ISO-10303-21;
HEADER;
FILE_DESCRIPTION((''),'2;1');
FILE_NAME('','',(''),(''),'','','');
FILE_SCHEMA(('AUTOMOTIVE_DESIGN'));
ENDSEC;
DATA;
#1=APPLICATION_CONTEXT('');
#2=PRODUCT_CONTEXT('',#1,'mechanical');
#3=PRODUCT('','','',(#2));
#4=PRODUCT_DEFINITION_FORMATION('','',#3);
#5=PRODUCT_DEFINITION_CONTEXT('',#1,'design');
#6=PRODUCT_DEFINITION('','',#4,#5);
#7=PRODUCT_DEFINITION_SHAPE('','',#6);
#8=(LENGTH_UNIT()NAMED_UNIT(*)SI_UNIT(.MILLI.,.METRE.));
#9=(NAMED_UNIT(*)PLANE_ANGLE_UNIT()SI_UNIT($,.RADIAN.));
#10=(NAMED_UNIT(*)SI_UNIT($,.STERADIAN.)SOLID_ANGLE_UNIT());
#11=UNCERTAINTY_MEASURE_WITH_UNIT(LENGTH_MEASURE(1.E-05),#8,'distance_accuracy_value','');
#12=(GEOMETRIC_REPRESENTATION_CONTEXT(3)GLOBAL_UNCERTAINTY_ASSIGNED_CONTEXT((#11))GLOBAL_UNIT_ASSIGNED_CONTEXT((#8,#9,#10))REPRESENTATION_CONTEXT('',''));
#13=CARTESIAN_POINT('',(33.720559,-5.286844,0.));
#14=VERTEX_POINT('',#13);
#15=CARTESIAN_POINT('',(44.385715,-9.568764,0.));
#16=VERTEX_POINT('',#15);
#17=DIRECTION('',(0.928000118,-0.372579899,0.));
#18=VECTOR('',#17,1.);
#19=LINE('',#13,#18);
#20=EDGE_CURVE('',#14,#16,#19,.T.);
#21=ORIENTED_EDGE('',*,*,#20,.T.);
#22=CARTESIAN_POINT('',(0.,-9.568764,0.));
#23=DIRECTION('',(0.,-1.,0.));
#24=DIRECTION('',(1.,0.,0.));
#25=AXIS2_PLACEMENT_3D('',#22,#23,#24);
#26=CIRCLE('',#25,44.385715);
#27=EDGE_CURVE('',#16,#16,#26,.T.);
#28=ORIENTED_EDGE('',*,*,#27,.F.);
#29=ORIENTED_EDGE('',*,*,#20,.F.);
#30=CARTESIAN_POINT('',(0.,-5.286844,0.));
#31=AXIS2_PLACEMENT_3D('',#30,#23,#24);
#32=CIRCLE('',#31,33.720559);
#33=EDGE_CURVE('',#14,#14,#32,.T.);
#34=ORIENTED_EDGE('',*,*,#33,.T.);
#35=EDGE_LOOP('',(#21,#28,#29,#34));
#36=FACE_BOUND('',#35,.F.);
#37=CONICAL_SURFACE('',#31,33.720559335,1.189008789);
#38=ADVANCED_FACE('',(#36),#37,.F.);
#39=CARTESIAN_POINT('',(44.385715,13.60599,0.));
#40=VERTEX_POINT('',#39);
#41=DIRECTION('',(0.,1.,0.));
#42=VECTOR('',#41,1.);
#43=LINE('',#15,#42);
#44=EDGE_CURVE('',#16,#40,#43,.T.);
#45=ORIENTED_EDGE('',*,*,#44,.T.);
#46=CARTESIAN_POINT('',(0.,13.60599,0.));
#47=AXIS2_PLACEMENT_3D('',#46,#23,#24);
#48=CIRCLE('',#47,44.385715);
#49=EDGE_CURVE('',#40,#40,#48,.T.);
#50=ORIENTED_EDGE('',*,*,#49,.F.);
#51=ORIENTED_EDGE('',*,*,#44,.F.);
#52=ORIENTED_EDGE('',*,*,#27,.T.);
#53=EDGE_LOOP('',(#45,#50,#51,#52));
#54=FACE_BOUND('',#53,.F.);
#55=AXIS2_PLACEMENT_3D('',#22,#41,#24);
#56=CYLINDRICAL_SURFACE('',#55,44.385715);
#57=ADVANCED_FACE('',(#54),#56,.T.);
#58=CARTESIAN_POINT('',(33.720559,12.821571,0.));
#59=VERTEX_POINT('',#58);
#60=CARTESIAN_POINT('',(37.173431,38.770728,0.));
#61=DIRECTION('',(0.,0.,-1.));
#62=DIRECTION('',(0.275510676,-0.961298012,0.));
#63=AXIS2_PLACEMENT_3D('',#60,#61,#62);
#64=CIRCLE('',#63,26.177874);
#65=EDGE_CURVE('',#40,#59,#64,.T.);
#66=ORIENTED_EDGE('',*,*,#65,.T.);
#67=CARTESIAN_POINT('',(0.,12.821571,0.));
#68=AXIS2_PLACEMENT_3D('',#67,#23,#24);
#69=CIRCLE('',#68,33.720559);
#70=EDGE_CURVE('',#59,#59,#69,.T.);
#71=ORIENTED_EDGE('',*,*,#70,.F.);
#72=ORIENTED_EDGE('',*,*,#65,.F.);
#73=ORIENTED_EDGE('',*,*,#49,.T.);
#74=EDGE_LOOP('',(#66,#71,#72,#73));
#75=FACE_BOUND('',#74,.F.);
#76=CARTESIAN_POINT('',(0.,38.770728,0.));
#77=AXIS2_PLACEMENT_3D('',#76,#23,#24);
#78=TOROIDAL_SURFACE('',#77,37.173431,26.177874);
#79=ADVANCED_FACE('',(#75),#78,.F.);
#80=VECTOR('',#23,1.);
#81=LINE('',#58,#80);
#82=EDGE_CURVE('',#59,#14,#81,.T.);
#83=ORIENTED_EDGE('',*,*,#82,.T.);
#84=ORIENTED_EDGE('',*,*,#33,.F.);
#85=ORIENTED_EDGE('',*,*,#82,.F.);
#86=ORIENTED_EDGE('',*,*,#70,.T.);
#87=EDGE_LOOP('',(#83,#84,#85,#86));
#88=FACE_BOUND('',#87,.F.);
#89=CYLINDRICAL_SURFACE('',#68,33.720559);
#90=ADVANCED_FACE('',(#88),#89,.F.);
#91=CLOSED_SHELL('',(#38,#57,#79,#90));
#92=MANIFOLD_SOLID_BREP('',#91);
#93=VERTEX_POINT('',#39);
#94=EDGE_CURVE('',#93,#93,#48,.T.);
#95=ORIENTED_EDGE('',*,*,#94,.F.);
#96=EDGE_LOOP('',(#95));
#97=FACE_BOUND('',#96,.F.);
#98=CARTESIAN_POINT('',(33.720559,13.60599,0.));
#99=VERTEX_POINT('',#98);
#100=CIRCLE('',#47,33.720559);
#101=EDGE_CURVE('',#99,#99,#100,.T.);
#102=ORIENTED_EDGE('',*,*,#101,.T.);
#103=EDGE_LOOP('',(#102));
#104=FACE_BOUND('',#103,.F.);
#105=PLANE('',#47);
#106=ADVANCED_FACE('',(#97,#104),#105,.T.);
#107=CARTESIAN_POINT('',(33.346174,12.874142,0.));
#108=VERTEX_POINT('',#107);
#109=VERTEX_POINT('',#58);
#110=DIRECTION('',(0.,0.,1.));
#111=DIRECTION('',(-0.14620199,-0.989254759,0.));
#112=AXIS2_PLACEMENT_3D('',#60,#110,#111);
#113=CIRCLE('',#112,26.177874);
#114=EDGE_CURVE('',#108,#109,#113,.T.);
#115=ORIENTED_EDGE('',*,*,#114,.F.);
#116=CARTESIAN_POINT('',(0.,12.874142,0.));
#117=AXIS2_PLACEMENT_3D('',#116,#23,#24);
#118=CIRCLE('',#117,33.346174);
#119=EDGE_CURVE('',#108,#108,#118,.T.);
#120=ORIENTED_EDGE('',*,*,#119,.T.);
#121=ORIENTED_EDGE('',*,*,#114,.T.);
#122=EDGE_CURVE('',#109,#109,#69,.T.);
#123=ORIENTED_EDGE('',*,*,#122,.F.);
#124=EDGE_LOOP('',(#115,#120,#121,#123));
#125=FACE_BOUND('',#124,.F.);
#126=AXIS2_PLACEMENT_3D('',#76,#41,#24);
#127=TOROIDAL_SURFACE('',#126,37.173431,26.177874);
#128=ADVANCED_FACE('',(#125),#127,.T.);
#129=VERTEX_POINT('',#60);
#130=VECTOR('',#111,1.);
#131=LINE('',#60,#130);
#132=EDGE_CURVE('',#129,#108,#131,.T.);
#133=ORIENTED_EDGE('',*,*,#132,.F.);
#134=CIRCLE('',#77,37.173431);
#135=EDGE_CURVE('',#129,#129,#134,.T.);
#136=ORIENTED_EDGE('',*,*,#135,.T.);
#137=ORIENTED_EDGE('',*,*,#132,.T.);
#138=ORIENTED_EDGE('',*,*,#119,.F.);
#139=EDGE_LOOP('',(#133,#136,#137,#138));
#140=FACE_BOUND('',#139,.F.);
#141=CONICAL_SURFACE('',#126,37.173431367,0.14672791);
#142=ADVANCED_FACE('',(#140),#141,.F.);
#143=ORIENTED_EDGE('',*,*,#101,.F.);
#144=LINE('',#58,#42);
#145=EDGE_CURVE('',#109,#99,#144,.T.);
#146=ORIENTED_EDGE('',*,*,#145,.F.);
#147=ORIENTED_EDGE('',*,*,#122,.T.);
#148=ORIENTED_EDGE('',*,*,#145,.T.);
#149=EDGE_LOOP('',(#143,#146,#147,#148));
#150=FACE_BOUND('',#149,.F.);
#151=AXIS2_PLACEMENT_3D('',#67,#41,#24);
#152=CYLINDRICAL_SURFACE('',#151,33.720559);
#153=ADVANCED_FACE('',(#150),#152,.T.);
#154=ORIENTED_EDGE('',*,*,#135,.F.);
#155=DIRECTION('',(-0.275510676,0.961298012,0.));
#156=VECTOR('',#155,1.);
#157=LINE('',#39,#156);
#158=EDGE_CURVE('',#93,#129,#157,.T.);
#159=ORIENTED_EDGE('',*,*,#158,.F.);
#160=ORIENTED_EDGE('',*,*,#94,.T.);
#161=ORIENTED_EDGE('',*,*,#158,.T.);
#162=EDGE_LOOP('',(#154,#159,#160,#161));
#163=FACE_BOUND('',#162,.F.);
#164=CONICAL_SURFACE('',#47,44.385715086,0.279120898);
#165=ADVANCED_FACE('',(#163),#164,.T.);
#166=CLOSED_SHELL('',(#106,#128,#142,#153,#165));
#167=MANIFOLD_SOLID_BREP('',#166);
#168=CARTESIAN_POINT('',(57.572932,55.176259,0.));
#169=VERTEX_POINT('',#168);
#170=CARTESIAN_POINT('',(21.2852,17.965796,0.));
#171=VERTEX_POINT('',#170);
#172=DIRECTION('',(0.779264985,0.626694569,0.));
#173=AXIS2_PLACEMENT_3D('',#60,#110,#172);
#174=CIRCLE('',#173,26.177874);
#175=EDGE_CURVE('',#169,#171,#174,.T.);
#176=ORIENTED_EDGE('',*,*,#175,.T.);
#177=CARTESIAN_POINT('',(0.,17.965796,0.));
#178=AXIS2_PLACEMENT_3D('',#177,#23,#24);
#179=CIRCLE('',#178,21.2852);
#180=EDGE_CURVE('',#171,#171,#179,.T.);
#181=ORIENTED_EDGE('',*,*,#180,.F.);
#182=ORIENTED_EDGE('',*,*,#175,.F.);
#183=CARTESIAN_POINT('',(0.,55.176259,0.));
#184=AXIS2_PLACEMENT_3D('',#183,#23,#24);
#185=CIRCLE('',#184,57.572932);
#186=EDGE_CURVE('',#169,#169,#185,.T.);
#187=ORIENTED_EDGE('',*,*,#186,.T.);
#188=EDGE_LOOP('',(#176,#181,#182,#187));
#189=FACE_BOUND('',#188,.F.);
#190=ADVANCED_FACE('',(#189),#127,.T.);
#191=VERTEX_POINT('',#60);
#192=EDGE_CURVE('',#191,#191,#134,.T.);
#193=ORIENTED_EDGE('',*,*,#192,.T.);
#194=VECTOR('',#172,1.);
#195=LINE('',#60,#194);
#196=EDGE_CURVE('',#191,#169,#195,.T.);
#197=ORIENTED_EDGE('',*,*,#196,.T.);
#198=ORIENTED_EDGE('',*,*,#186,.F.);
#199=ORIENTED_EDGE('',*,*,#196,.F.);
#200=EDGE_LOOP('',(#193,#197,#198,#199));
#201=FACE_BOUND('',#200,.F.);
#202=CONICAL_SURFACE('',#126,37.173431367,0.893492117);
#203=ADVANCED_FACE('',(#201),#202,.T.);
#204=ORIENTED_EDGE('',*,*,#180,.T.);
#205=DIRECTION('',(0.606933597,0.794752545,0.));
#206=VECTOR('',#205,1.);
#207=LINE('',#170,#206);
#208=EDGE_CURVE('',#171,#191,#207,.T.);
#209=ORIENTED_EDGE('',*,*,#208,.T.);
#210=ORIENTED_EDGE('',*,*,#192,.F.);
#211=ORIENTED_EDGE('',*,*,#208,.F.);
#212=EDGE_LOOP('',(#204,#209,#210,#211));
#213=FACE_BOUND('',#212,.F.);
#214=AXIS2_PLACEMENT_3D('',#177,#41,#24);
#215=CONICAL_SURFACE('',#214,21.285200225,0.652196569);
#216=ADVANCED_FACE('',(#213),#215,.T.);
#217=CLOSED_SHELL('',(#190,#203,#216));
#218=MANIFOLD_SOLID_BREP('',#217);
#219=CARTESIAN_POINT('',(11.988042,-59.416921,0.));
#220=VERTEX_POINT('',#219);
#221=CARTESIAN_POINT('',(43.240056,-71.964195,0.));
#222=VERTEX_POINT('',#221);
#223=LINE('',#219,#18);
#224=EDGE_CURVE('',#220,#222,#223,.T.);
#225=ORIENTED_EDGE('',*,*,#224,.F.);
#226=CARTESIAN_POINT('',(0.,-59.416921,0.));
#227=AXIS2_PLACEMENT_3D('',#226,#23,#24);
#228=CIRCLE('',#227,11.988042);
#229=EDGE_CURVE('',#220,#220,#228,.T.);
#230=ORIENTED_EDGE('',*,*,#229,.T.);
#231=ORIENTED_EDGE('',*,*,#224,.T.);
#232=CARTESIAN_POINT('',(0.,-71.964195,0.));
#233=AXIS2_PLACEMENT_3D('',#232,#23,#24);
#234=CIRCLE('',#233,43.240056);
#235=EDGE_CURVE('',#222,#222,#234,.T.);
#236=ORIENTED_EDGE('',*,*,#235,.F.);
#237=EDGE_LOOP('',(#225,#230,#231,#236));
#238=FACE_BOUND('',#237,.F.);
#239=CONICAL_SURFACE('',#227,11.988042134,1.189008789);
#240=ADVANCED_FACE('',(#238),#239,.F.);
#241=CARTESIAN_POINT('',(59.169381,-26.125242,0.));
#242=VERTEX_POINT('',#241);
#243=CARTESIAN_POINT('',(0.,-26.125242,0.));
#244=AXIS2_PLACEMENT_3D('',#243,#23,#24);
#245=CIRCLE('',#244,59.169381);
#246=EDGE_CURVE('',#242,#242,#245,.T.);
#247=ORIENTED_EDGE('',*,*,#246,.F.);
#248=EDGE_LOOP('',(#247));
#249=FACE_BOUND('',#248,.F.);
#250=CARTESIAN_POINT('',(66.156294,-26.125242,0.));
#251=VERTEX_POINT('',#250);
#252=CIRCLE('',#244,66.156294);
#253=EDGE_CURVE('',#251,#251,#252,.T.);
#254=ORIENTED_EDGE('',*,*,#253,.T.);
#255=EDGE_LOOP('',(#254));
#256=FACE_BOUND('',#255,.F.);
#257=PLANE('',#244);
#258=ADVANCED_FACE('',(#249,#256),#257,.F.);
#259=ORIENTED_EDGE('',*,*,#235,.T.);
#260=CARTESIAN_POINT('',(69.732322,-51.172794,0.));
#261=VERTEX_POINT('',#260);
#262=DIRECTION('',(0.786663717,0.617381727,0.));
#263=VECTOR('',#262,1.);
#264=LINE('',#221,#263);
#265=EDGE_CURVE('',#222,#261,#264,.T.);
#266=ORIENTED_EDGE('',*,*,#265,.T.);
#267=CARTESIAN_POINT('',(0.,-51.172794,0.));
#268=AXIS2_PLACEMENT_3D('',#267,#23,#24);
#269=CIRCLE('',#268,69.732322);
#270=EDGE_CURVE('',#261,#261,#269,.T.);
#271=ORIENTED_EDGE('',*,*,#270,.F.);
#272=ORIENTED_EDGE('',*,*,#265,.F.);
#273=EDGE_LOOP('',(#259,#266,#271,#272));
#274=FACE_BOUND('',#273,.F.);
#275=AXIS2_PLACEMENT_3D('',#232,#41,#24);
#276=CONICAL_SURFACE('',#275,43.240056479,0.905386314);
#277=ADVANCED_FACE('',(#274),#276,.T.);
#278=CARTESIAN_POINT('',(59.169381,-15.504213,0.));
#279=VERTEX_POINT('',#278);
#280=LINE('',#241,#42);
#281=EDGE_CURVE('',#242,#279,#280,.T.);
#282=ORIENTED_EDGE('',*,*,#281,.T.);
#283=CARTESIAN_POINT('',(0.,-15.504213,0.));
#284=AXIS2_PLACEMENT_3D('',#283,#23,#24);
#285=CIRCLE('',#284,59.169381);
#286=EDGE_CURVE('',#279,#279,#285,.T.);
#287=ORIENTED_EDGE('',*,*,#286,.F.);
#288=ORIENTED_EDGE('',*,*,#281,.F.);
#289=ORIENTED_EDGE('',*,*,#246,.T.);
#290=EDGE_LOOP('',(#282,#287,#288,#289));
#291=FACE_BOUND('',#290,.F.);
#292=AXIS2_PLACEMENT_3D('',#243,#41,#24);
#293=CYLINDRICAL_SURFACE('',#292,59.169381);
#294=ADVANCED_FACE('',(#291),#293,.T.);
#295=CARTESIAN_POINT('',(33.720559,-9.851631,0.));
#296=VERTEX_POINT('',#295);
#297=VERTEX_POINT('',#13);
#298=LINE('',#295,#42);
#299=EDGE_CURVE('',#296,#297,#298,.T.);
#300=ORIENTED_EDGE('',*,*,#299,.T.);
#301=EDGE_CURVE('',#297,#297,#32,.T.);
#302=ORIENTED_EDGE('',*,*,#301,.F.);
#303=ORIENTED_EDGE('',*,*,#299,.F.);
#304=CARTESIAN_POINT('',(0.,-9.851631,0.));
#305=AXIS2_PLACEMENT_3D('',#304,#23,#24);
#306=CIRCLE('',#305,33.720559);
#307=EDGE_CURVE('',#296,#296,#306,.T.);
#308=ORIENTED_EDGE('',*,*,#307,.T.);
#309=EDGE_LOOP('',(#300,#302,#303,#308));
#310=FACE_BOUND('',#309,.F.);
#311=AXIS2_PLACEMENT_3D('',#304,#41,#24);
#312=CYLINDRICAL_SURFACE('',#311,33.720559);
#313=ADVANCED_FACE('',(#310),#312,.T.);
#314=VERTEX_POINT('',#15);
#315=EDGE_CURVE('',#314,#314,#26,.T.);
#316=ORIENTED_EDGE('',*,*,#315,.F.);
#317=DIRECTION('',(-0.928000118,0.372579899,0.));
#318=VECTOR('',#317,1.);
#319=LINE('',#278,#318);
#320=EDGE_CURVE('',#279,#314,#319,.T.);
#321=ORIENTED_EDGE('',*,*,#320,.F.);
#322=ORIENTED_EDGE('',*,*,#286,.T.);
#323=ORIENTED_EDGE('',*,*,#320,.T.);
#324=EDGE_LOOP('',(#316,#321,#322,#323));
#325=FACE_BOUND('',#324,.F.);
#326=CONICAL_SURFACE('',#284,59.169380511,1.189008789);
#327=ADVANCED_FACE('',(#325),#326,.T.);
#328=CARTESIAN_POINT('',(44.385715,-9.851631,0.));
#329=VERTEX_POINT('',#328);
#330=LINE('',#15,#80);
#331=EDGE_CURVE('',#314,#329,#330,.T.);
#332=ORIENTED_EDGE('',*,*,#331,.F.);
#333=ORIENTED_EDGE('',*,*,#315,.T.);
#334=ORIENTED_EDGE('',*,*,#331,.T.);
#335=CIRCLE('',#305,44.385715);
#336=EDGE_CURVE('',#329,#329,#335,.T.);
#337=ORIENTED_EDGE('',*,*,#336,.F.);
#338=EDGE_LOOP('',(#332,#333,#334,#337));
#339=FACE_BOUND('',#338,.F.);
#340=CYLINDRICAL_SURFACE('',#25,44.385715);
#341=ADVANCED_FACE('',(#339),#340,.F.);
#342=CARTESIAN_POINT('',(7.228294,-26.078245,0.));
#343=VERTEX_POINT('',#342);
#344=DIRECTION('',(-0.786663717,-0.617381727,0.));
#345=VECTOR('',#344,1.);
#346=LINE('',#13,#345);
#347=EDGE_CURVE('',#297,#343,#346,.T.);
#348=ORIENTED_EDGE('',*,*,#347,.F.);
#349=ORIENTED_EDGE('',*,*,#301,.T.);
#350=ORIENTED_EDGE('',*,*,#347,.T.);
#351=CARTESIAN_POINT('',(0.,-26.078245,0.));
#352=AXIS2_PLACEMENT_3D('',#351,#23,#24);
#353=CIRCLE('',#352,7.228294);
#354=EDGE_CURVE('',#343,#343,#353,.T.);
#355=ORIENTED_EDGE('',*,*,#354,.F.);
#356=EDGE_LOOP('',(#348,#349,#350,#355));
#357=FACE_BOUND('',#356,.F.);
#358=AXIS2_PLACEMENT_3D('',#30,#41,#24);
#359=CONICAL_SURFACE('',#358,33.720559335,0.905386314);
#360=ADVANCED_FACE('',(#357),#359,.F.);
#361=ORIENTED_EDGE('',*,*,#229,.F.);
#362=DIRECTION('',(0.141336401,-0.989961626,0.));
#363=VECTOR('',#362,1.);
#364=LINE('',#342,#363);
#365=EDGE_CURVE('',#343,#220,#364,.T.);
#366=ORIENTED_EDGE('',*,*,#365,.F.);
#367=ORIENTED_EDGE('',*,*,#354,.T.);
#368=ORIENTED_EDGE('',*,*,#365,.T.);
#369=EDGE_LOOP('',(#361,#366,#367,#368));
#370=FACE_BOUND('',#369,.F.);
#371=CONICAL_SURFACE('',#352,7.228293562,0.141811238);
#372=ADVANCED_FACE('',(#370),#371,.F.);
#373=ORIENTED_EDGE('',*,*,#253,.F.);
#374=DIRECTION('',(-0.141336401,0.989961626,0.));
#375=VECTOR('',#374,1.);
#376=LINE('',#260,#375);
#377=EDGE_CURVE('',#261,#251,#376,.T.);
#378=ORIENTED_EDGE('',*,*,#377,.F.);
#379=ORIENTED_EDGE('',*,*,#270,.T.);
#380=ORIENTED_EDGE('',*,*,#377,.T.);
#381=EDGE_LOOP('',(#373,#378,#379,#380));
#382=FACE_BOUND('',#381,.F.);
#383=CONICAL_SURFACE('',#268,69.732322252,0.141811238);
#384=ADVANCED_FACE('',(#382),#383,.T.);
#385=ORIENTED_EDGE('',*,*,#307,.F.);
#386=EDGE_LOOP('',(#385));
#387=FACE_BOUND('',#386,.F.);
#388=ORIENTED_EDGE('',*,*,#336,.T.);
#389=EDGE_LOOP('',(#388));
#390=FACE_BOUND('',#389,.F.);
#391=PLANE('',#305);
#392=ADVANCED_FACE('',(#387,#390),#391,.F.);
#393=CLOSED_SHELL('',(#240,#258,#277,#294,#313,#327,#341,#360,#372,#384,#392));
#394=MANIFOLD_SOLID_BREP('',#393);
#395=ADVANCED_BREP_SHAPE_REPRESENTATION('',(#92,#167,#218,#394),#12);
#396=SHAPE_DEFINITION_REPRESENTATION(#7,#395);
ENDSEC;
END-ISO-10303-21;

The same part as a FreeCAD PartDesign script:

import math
import FreeCAD as App
import Part
import Sketcher
from FreeCAD import Vector

doc = App.newDocument("Part")
body = doc.addObject("PartDesign::Body", "Body")

# Sketch on XY plane
sketch1 = doc.addObject("Sketcher::SketchObject", "Sketch")
body.addObject(sketch1)
sketch1.AttachmentSupport = (doc.XY_Plane, [""])
sketch1.MapMode = "FlatFace"
sketch1.addGeometry([
    Part.LineSegment(Vector(37.173431, 38.770728, 0), Vector(57.572932, 55.176259, 0)),
    Part.ArcOfCircle(Part.Circle(Vector(37.173431, 38.770728, 0), Vector(0, 0, 1), 26.177874), math.radians(38.806673), math.radians(232.631889)),
    Part.LineSegment(Vector(21.2852, 17.965796, 0), Vector(37.173431, 38.770728, 0)),
], False)
sketch1.addConstraint([
    Sketcher.Constraint("Coincident", 0, 2, 1, 1),
    Sketcher.Constraint("Coincident", 1, 2, 2, 1),
    Sketcher.Constraint("Coincident", 2, 2, 0, 1),
    Sketcher.Constraint("Coincident", 2, 2, 1, 3),
    Sketcher.Constraint("Radius", 1, 26.177874),
    Sketcher.Constraint("DistanceX", -1, 1, 1, 2, 21.2852),
    Sketcher.Constraint("DistanceX", 1, 3, 0, 2, 20.3995),
    Sketcher.Constraint("DistanceX", -1, 1, 1, 3, 37.173431),
    Sketcher.Constraint("DistanceY", -1, 1, 0, 2, 55.176259),
])
revolution = doc.addObject("PartDesign::Revolution", "Revolution")
body.addObject(revolution)
revolution.Profile = sketch1
revolution.ReferenceAxis = (sketch1, ["V_Axis"])
revolution.Angle = 360
body2 = doc.addObject("PartDesign::Body", "Body001")

# Sketch on XY plane
sketch2 = doc.addObject("Sketcher::SketchObject", "Sketch001")
body2.addObject(sketch2)
sketch2.AttachmentSupport = (doc.getObject("XY_Plane001"), [""])
sketch2.MapMode = "FlatFace"
sketch2.addGeometry([
    Part.LineSegment(Vector(44.385715, 13.60599, 0), Vector(37.173431, 38.770728, 0)),  # 0
    Part.LineSegment(Vector(37.173431, 38.770728, 0), Vector(33.346174, 12.874142, 0)),  # 1
    Part.ArcOfCircle(Part.Circle(Vector(37.173431, 38.770728, 0), Vector(0, 0, 1), 26.177874), math.radians(-98.40689), math.radians(-97.579423)),  # 2
    Part.LineSegment(Vector(33.720559, 12.821571, 0), Vector(33.720559, 13.60599, 0)),  # 3
    Part.LineSegment(Vector(33.720559, 13.60599, 0), Vector(44.385715, 13.60599, 0)),  # 4
], False)
sketch2.addConstraint([
    Sketcher.Constraint("Coincident", 0, 2, 1, 1),
    Sketcher.Constraint("Coincident", 1, 2, 2, 1),
    Sketcher.Constraint("Coincident", 2, 2, 3, 1),
    Sketcher.Constraint("Coincident", 3, 2, 4, 1),
    Sketcher.Constraint("Coincident", 4, 2, 0, 1),
    Sketcher.Constraint("Vertical", 3),
    Sketcher.Constraint("Horizontal", 4),
    Sketcher.Constraint("Coincident", 0, 2, 2, 3),
    Sketcher.Constraint("Equal", 0, 1),
    Sketcher.Constraint("Radius", 2, 26.177874),
    Sketcher.Constraint("DistanceY", 3, 1, 3, 2, 0.784419),
    Sketcher.Constraint("DistanceX", 4, 1, 4, 2, 10.665156),
    Sketcher.Constraint("DistanceX", -1, 1, 2, 3, 37.173431),
    Sketcher.Constraint("DistanceY", -1, 1, 2, 3, 38.770728),
    Sketcher.Constraint("DistanceY", -1, 1, 1, 2, 12.874142),
])
revolution2 = doc.addObject("PartDesign::Revolution", "Revolution001")
body2.addObject(revolution2)
revolution2.Profile = sketch2
revolution2.ReferenceAxis = (sketch2, ["V_Axis"])
revolution2.Angle = 360
body3 = doc.addObject("PartDesign::Body", "Body002")

# Sketch on XY plane
sketch3 = doc.addObject("Sketcher::SketchObject", "Sketch002")
body3.addObject(sketch3)
sketch3.AttachmentSupport = (doc.getObject("XY_Plane002"), [""])
sketch3.MapMode = "FlatFace"
sketch3.addGeometry([
    Part.LineSegment(Vector(59.169381, -15.504213, 0), Vector(44.385715, -9.568764, 0)),  # 0
    Part.LineSegment(Vector(44.385715, -9.568764, 0), Vector(44.385715, -9.851631, 0)),  # 1
    Part.LineSegment(Vector(44.385715, -9.851631, 0), Vector(33.720559, -9.851631, 0)),  # 2
    Part.LineSegment(Vector(33.720559, -9.851631, 0), Vector(33.720559, -5.286844, 0)),  # 3
    Part.LineSegment(Vector(33.720559, -5.286844, 0), Vector(7.228294, -26.078245, 0)),  # 4
    Part.LineSegment(Vector(7.228294, -26.078245, 0), Vector(11.988042, -59.416921, 0)),  # 5
    Part.LineSegment(Vector(11.988042, -59.416921, 0), Vector(43.240056, -71.964195, 0)),  # 6
    Part.LineSegment(Vector(43.240056, -71.964195, 0), Vector(69.732322, -51.172794, 0)),  # 7
    Part.LineSegment(Vector(69.732322, -51.172794, 0), Vector(66.156294, -26.125242, 0)),  # 8
    Part.LineSegment(Vector(66.156294, -26.125242, 0), Vector(59.169381, -26.125242, 0)),  # 9
    Part.LineSegment(Vector(59.169381, -26.125242, 0), Vector(59.169381, -15.504213, 0)),  # 10
], False)
sketch3.addConstraint([
    Sketcher.Constraint("Coincident", 0, 2, 1, 1),
    Sketcher.Constraint("Coincident", 1, 2, 2, 1),
    Sketcher.Constraint("Coincident", 2, 2, 3, 1),
    Sketcher.Constraint("Coincident", 3, 2, 4, 1),
    Sketcher.Constraint("Coincident", 4, 2, 5, 1),
    Sketcher.Constraint("Coincident", 5, 2, 6, 1),
    Sketcher.Constraint("Coincident", 6, 2, 7, 1),
    Sketcher.Constraint("Coincident", 7, 2, 8, 1),
    Sketcher.Constraint("Coincident", 8, 2, 9, 1),
    Sketcher.Constraint("Coincident", 9, 2, 10, 1),
    Sketcher.Constraint("Coincident", 10, 2, 0, 1),
    Sketcher.Constraint("Vertical", 1),
    Sketcher.Constraint("Horizontal", 2),
    Sketcher.Constraint("Vertical", 3),
    Sketcher.Constraint("Horizontal", 9),
    Sketcher.Constraint("Vertical", 10),
    Sketcher.Constraint("Parallel", 0, 6),
    Sketcher.Constraint("Parallel", 4, 7),
    Sketcher.Constraint("Parallel", 5, 8),
    Sketcher.Constraint("Equal", 4, 5),
    Sketcher.Constraint("Equal", 5, 6),
    Sketcher.Constraint("Equal", 6, 7),
    Sketcher.Constraint("DistanceY", 10, 1, 10, 2, 10.621029),
    Sketcher.Constraint("DistanceY", 4, 2, 3, 2, 20.791401),
    Sketcher.Constraint("Distance", 0, 15.930672),
    Sketcher.Constraint("Distance", 8, 25.301539),
    Sketcher.Constraint("DistanceX", 2, 2, 2, 1, 10.665156),
    Sketcher.Constraint("DistanceX", 9, 2, 9, 1, 6.986913),
    Sketcher.Constraint("DistanceY", 1, 2, 1, 1, 0.282867),
    Sketcher.Constraint("DistanceY", 3, 1, 3, 2, 4.564787),
    Sketcher.Constraint("DistanceY", 1, 2, -1, 1, 9.851631),
    Sketcher.Constraint("DistanceX", -1, 1, 2, 2, 33.720559),
    Sketcher.Constraint("DistanceY", 5, 2, -1, 1, 59.416921),
])
revolution3 = doc.addObject("PartDesign::Revolution", "Revolution002")
body3.addObject(revolution3)
revolution3.Profile = sketch3
revolution3.ReferenceAxis = (sketch3, ["V_Axis"])
revolution3.Angle = 360
body4 = doc.addObject("PartDesign::Body", "Body003")

# Sketch on XY plane
sketch4 = doc.addObject("Sketcher::SketchObject", "Sketch003")
body4.addObject(sketch4)
sketch4.AttachmentSupport = (doc.getObject("XY_Plane003"), [""])
sketch4.MapMode = "FlatFace"
sketch4.addGeometry([
    Part.LineSegment(Vector(44.385715, -9.568764, 0), Vector(44.385715, 13.60599, 0)),
    Part.ArcOfCircle(Part.Circle(Vector(37.173431, 38.770728, 0), Vector(0, 0, 1), 26.177874), math.radians(-97.579423), math.radians(-74.007551)),
    Part.LineSegment(Vector(33.720559, 12.821571, 0), Vector(33.720559, -5.286844, 0)),
    Part.LineSegment(Vector(33.720559, -5.286844, 0), Vector(44.385715, -9.568764, 0)),
], False)
sketch4.addConstraint([
    Sketcher.Constraint("Coincident", 0, 2, 1, 2),
    Sketcher.Constraint("Coincident", 1, 1, 2, 1),
    Sketcher.Constraint("Coincident", 2, 2, 3, 1),
    Sketcher.Constraint("Coincident", 3, 2, 0, 1),
    Sketcher.Constraint("Vertical", 0),
    Sketcher.Constraint("Vertical", 2),
    Sketcher.Constraint("Radius", 1, 26.177874),
    Sketcher.Constraint("DistanceY", 0, 1, 0, 2, 23.174754),
    Sketcher.Constraint("DistanceY", 2, 2, 2, 1, 18.108415),
    Sketcher.Constraint("DistanceX", -1, 1, 1, 3, 37.173431),
    Sketcher.Constraint("DistanceY", -1, 1, 0, 2, 13.60599),
    Sketcher.Constraint("DistanceX", -1, 1, 1, 1, 33.720559),
    Sketcher.Constraint("DistanceY", -1, 1, 1, 1, 12.821571),
])
revolution4 = doc.addObject("PartDesign::Revolution", "Revolution003")
body4.addObject(revolution4)
revolution4.Profile = sketch4
revolution4.ReferenceAxis = (sketch4, ["V_Axis"])
revolution4.Angle = 360

doc.recompute()
